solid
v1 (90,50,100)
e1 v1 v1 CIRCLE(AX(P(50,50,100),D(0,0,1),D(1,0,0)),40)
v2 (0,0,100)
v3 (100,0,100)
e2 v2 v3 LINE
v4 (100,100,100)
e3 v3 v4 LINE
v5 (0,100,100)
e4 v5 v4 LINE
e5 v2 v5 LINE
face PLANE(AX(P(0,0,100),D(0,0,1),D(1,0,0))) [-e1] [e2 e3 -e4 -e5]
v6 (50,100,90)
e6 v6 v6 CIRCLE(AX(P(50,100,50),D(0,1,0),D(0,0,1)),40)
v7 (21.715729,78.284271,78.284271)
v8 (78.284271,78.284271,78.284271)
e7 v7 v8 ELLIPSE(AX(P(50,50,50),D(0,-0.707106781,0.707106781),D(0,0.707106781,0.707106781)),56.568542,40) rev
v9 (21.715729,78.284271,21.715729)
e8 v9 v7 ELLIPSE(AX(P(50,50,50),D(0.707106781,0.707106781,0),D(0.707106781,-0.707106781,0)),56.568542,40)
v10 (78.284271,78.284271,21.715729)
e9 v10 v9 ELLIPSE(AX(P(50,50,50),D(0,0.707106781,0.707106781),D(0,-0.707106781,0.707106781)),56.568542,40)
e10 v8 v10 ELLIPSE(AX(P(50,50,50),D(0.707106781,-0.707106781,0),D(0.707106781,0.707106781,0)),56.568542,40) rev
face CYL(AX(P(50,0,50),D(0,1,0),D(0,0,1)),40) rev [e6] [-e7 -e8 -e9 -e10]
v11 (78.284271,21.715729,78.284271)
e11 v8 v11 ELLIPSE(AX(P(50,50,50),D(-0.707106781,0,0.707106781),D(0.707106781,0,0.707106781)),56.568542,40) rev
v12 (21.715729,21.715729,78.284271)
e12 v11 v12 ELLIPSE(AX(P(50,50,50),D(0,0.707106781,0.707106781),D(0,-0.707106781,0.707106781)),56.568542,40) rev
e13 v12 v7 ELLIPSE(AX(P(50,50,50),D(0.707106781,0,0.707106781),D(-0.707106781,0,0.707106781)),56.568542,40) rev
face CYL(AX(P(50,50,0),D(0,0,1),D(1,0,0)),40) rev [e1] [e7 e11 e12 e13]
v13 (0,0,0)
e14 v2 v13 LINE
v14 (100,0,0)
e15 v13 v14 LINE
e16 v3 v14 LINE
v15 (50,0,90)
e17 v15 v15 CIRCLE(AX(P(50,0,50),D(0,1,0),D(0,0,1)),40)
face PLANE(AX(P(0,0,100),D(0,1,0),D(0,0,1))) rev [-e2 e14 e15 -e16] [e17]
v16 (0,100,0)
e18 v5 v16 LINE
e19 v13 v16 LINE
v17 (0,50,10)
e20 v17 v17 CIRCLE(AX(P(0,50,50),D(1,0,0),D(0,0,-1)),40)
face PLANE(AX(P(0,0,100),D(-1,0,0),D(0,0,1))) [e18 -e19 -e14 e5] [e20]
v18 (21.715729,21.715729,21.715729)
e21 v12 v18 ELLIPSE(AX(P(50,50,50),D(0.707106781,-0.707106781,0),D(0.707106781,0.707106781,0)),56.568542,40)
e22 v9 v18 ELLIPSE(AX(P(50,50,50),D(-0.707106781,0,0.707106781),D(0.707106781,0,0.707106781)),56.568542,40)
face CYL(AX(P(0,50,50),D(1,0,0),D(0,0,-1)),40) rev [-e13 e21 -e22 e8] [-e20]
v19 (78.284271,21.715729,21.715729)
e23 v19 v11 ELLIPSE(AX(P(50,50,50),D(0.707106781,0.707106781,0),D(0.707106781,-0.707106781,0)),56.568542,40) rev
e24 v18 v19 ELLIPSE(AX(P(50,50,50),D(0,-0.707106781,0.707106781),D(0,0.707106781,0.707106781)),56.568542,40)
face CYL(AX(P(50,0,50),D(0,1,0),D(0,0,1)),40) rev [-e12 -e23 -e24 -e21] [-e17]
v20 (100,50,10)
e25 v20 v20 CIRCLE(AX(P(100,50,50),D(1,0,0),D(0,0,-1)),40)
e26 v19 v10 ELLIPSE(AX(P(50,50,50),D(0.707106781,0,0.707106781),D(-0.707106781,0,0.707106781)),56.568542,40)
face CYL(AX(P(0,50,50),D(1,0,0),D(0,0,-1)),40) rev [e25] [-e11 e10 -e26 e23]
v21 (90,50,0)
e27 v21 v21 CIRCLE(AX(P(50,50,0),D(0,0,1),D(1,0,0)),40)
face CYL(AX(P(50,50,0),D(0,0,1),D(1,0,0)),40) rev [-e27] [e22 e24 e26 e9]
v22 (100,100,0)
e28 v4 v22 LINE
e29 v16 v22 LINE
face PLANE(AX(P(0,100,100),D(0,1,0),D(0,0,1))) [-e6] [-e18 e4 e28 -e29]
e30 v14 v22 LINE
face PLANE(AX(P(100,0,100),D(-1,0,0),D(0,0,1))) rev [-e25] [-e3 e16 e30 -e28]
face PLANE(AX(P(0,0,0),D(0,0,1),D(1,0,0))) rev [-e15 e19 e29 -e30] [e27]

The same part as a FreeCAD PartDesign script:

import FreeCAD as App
import Part
import Sketcher
from FreeCAD import Vector


def add_polygon(sketch, points):
    """Adds a closed chain of lines whose ends are joined by coincident constraints."""
    first, n = sketch.GeometryCount, len(points)
    for a, b in zip(points, points[1:] + points[:1]):
        sketch.addGeometry(Part.LineSegment(App.Vector(*a, 0), App.Vector(*b, 0)), False)
    for i in range(n):
        sketch.addConstraint(Sketcher.Constraint("Coincident", first + i, 2, first + (i + 1) % n, 1))

doc = App.newDocument("Part")
body = doc.addObject("PartDesign::Body", "Body")

# Sketch on XY plane
sketch1 = body.newObject("Sketcher::SketchObject", "Sketch")
sketch1.AttachmentSupport = (doc.getObject("XY_Plane"), [""])
sketch1.MapMode = "FlatFace"
add_polygon(sketch1, [(0, 100), (0, 0), (100, 0), (100, 100)])  # lines 0-3
sketch1.addConstraint([
    Sketcher.Constraint("Vertical", 0),
    Sketcher.Constraint("Horizontal", 1),
    Sketcher.Constraint("Vertical", 2),
    Sketcher.Constraint("Horizontal", 3),
    Sketcher.Constraint("Coincident", 0, 2, -1, 1),
    Sketcher.Constraint("Equal", 3, 0),
    Sketcher.Constraint("DistanceX", 1, 1, 1, 2, 100.0),
])
pad1 = body.newObject("PartDesign::Pad", "Pad")
pad1.Profile = sketch1
pad1.Length = 100

# Sketch on XY plane
sketch2 = body.newObject("Sketcher::SketchObject", "Sketch001")
sketch2.AttachmentSupport = (doc.getObject("XY_Plane"), [""])
sketch2.MapMode = "FlatFace"
sketch2.AttachmentOffset = App.Placement(Vector(0, 0, 100), App.Rotation())
sketch2.addGeometry(Part.Circle(Vector(50, 50, 0), Vector(0, 0, 1), 40), False)
sketch2.addConstraint([
    Sketcher.Constraint("Diameter", 0, 80.0),
    Sketcher.Constraint("DistanceX", -1, 1, 0, 3, 50.0),
    Sketcher.Constraint("DistanceY", -1, 1, 0, 3, 50.0),
])
pocket1 = body.newObject("PartDesign::Pocket", "Pocket")
pocket1.Profile = sketch2
pocket1.Length = 100

# Sketch on YZ plane
sketch3 = body.newObject("Sketcher::SketchObject", "Sketch002")
sketch3.AttachmentSupport = (doc.getObject("YZ_Plane"), [""])
sketch3.MapMode = "FlatFace"
sketch3.AttachmentOffset = App.Placement(Vector(0, 0, 100), App.Rotation())
sketch3.addGeometry(Part.Circle(Vector(50, 50, 0), Vector(0, 0, 1), 40), False)
sketch3.addConstraint([
    Sketcher.Constraint("Diameter", 0, 80.0),
    Sketcher.Constraint("DistanceX", -1, 1, 0, 3, 50.0),
    Sketcher.Constraint("DistanceY", -1, 1, 0, 3, 50.0),
])
pocket2 = body.newObject("PartDesign::Pocket", "Pocket001")
pocket2.Profile = sketch3
pocket2.Length = 100

# Sketch on XZ plane
sketch4 = body.newObject("Sketcher::SketchObject", "Sketch003")
sketch4.AttachmentSupport = (doc.getObject("XZ_Plane"), [""])
sketch4.MapMode = "FlatFace"
sketch4.AttachmentOffset = App.Placement(Vector(0, 0, -100), App.Rotation())
sketch4.addGeometry(Part.Circle(Vector(50, 50, 0), Vector(0, 0, 1), 40), False)
sketch4.addConstraint([
    Sketcher.Constraint("Diameter", 0, 80.0),
    Sketcher.Constraint("DistanceX", -1, 1, 0, 3, 50.0),
    Sketcher.Constraint("DistanceY", -1, 1, 0, 3, 50.0),
])
pocket3 = body.newObject("PartDesign::Pocket", "Pocket002")
pocket3.Profile = sketch4
pocket3.Length = 100
pocket3.Reversed = True

doc.recompute()
